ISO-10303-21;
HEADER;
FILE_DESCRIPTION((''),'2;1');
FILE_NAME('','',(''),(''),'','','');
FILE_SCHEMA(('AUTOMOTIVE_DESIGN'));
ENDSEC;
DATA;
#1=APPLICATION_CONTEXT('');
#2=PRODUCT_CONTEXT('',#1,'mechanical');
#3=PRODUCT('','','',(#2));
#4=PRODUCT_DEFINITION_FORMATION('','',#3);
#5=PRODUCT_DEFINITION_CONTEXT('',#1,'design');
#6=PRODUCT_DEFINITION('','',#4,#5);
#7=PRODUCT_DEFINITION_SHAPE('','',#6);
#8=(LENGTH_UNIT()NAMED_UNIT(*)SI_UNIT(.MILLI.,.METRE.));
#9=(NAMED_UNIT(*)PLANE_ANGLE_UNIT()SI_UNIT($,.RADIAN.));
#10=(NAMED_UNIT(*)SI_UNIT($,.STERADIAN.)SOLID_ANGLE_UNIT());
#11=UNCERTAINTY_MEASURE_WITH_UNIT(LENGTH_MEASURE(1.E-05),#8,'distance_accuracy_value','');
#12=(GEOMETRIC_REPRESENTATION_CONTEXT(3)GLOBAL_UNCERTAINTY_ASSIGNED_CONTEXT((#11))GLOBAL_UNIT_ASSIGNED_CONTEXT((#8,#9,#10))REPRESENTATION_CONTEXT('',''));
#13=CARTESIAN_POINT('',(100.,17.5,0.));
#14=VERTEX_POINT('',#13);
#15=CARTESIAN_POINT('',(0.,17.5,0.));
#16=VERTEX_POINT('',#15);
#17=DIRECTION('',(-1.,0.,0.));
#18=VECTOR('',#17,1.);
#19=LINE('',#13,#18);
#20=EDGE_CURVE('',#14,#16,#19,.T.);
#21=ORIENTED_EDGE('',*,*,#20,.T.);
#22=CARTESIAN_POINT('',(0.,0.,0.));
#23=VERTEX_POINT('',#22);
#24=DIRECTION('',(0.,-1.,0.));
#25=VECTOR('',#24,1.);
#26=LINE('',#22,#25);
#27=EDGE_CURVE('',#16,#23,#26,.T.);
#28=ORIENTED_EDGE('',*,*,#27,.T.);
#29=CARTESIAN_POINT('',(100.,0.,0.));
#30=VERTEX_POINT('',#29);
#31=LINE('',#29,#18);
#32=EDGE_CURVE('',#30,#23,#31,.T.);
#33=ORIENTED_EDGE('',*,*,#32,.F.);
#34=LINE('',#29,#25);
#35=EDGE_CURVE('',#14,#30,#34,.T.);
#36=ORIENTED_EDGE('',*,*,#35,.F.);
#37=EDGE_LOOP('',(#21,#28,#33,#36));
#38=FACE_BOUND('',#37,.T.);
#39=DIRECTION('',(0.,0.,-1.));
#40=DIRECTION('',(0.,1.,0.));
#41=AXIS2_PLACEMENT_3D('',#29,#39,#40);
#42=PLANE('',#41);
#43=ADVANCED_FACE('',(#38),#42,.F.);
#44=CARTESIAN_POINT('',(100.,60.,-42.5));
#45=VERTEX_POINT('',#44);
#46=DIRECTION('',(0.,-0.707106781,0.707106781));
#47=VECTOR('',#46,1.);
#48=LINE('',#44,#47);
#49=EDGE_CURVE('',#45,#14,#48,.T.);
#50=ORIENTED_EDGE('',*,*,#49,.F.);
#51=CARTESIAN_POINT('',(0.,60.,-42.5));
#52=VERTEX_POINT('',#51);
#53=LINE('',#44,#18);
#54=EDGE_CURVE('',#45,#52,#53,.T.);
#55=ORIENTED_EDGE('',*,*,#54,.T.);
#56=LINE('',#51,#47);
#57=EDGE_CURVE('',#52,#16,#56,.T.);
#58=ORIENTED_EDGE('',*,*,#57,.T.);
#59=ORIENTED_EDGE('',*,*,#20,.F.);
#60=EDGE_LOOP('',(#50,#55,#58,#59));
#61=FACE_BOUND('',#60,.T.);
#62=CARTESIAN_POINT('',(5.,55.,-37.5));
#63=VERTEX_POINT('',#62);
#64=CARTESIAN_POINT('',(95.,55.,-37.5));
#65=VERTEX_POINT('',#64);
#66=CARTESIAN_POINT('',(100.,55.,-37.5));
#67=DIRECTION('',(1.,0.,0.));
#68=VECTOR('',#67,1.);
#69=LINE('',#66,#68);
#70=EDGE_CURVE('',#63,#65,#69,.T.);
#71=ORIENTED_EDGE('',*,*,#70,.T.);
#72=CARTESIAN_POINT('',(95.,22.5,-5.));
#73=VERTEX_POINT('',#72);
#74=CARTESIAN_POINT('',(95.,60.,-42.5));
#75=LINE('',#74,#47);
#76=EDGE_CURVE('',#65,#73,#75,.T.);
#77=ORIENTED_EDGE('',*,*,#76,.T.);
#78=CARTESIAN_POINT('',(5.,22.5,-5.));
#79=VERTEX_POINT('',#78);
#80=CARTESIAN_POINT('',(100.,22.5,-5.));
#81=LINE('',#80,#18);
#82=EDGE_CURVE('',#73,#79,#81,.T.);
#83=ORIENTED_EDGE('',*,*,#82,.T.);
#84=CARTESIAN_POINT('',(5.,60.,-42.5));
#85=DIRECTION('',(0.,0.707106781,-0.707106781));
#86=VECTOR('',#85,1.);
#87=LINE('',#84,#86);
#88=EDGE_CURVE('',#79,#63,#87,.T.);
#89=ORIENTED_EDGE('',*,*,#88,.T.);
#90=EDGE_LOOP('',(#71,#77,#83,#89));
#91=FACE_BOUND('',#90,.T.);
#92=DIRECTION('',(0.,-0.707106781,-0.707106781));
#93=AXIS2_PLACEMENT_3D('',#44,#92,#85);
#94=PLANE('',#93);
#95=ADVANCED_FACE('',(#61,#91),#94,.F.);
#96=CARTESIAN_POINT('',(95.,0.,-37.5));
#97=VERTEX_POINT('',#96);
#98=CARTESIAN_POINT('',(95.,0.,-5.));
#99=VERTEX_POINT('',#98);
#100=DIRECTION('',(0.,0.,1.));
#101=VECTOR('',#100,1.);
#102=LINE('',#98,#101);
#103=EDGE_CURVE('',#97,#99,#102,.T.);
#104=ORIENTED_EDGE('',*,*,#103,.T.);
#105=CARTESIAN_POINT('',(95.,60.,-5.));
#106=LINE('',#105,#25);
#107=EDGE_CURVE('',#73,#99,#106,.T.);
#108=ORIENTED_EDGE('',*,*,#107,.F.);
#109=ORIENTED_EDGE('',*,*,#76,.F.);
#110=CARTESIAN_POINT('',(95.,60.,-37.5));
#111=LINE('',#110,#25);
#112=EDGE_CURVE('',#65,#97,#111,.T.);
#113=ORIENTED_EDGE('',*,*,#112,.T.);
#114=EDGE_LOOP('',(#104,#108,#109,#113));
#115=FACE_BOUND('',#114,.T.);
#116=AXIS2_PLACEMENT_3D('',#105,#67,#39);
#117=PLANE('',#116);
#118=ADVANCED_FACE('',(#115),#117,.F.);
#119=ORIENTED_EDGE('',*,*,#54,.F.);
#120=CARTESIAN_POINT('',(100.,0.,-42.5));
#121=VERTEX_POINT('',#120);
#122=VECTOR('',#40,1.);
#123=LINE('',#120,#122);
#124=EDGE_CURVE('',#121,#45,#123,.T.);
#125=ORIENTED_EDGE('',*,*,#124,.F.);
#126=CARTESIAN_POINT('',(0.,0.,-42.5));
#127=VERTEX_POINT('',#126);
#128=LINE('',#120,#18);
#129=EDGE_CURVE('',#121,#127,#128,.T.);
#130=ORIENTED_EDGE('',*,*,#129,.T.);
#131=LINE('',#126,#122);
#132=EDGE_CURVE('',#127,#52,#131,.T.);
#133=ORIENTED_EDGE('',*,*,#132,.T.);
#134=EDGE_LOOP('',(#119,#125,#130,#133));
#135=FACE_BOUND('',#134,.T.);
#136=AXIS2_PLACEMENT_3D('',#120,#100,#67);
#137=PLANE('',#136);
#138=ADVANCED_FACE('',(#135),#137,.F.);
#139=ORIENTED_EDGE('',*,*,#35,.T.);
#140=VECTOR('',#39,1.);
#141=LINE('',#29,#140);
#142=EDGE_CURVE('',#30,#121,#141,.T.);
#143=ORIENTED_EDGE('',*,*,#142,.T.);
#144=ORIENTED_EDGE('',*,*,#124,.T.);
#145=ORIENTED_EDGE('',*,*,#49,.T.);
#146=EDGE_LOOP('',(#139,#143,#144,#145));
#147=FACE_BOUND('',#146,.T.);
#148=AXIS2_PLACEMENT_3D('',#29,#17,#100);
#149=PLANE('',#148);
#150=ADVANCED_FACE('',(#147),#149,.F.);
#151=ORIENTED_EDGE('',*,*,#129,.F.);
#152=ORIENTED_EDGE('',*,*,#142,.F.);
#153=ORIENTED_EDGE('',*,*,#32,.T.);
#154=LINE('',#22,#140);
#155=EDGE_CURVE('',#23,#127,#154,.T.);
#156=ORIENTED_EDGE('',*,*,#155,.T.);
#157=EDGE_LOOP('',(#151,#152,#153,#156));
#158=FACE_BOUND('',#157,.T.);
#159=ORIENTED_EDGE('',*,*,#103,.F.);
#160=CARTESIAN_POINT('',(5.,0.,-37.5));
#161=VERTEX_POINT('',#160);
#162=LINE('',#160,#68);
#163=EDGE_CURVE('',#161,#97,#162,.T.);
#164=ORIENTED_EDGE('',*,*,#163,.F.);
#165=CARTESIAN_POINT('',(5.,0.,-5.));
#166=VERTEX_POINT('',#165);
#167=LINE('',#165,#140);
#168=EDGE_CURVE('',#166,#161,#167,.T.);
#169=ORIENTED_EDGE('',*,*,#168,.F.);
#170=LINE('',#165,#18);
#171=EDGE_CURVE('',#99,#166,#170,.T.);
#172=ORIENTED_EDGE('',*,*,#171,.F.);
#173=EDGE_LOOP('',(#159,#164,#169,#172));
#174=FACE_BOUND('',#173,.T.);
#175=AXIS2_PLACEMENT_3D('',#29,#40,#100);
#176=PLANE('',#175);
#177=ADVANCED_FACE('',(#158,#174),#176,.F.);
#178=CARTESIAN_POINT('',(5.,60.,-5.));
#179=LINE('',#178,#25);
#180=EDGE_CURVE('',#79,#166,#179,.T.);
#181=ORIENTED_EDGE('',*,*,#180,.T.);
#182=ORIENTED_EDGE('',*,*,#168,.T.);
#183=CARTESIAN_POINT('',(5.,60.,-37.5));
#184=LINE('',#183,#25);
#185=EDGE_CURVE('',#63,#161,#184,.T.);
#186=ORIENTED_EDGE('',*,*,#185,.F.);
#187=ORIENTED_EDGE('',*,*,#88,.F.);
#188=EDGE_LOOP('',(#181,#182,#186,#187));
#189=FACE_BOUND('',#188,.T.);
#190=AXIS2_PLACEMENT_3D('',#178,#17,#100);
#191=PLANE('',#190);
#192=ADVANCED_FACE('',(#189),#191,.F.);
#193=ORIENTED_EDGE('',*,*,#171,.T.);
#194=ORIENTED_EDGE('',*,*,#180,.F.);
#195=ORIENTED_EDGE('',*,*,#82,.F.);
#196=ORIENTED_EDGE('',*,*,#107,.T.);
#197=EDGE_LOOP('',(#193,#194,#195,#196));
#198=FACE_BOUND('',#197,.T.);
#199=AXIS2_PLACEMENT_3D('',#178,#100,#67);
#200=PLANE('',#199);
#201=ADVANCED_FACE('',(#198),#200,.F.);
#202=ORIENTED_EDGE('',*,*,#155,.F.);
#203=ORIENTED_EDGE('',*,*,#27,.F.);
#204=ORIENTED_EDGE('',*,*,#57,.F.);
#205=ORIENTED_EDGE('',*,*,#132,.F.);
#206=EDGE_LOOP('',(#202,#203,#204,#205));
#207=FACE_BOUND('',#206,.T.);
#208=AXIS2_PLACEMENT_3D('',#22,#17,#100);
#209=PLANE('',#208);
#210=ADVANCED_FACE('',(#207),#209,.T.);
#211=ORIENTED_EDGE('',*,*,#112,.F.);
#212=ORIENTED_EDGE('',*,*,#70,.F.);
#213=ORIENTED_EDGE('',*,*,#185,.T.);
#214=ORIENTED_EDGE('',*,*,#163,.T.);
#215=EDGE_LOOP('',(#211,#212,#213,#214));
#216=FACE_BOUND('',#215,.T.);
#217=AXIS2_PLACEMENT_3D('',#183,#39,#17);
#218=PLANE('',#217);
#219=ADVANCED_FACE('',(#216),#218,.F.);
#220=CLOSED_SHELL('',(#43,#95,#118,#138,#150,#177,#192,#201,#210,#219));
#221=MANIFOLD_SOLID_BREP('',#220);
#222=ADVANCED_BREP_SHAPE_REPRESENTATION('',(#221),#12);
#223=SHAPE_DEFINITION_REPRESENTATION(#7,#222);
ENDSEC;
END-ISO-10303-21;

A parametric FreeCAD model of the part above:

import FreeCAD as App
import Part
import Sketcher
Q = App.Units.Quantity


def add_polygon(sketch, points):
    """Adds a closed chain of lines whose ends are joined by coincident constraints."""
    first, n = sketch.GeometryCount, len(points)
    for a, b in zip(points, points[1:] + points[:1]):
        sketch.addGeometry(Part.LineSegment(App.Vector(*a, 0), App.Vector(*b, 0)), False)
    for i in range(n):
        sketch.addConstraint(Sketcher.Constraint("Coincident", first + i, 2, first + (i + 1) % n, 1))

doc = App.newDocument("Part")
body = doc.addObject("PartDesign::Body", "Body")

sketch1 = body.newObject("Sketcher::SketchObject", "Sketch")
sketch1.AttachmentSupport = (doc.getObject("YZ_Plane"), [""])
sketch1.MapMode = "FlatFace"
add_polygon(sketch1, [(60, -42), (18, 0), (0, 0), (0, -42)])
sketch1.addConstraint(Sketcher.Constraint("Horizontal", 1))
sketch1.addConstraint(Sketcher.Constraint("Vertical", 2))
sketch1.addConstraint(Sketcher.Constraint("Horizontal", 3))
sketch1.addConstraint(Sketcher.Constraint("Coincident", 1, 2, -1, 1))
sketch1.addConstraint(Sketcher.Constraint("DistanceX", 3, 1, 3, 2, 60.0))
sketch1.addConstraint(Sketcher.Constraint("Angle", 0, Q("135 deg")))
sketch1.addConstraint(Sketcher.Constraint("DistanceX", 1, 2, 1, 1, 17.5))
pad1 = body.newObject("PartDesign::Pad", "Pad")
pad1.Profile = sketch1
pad1.Length = 100

sketch2 = body.newObject("Sketcher::SketchObject", "Sketch001")
sketch2.AttachmentSupport = (doc.getObject("XZ_Plane"), [""])
sketch2.MapMode = "FlatFace"
add_polygon(sketch2, [(5, -5), (5, -38), (95, -38), (95, -5)])
sketch2.addConstraint(Sketcher.Constraint("Vertical", 0))
sketch2.addConstraint(Sketcher.Constraint("Horizontal", 1))
sketch2.addConstraint(Sketcher.Constraint("Vertical", 2))
sketch2.addConstraint(Sketcher.Constraint("Horizontal", 3))
sketch2.addConstraint(Sketcher.Constraint("DistanceX", 1, 1, 1, 2, 90.0))
sketch2.addConstraint(Sketcher.Constraint("DistanceY", 0, 2, 0, 1, 32.5))
sketch2.addConstraint(Sketcher.Constraint("DistanceX", -1, 1, 0, 2, 5.0))
sketch2.addConstraint(Sketcher.Constraint("DistanceY", 2, 2, -1, 1, 5.0))
pocket1 = body.newObject("PartDesign::Pocket", "Pocket")
pocket1.Profile = sketch2
pocket1.Length = 60

doc.recompute()
